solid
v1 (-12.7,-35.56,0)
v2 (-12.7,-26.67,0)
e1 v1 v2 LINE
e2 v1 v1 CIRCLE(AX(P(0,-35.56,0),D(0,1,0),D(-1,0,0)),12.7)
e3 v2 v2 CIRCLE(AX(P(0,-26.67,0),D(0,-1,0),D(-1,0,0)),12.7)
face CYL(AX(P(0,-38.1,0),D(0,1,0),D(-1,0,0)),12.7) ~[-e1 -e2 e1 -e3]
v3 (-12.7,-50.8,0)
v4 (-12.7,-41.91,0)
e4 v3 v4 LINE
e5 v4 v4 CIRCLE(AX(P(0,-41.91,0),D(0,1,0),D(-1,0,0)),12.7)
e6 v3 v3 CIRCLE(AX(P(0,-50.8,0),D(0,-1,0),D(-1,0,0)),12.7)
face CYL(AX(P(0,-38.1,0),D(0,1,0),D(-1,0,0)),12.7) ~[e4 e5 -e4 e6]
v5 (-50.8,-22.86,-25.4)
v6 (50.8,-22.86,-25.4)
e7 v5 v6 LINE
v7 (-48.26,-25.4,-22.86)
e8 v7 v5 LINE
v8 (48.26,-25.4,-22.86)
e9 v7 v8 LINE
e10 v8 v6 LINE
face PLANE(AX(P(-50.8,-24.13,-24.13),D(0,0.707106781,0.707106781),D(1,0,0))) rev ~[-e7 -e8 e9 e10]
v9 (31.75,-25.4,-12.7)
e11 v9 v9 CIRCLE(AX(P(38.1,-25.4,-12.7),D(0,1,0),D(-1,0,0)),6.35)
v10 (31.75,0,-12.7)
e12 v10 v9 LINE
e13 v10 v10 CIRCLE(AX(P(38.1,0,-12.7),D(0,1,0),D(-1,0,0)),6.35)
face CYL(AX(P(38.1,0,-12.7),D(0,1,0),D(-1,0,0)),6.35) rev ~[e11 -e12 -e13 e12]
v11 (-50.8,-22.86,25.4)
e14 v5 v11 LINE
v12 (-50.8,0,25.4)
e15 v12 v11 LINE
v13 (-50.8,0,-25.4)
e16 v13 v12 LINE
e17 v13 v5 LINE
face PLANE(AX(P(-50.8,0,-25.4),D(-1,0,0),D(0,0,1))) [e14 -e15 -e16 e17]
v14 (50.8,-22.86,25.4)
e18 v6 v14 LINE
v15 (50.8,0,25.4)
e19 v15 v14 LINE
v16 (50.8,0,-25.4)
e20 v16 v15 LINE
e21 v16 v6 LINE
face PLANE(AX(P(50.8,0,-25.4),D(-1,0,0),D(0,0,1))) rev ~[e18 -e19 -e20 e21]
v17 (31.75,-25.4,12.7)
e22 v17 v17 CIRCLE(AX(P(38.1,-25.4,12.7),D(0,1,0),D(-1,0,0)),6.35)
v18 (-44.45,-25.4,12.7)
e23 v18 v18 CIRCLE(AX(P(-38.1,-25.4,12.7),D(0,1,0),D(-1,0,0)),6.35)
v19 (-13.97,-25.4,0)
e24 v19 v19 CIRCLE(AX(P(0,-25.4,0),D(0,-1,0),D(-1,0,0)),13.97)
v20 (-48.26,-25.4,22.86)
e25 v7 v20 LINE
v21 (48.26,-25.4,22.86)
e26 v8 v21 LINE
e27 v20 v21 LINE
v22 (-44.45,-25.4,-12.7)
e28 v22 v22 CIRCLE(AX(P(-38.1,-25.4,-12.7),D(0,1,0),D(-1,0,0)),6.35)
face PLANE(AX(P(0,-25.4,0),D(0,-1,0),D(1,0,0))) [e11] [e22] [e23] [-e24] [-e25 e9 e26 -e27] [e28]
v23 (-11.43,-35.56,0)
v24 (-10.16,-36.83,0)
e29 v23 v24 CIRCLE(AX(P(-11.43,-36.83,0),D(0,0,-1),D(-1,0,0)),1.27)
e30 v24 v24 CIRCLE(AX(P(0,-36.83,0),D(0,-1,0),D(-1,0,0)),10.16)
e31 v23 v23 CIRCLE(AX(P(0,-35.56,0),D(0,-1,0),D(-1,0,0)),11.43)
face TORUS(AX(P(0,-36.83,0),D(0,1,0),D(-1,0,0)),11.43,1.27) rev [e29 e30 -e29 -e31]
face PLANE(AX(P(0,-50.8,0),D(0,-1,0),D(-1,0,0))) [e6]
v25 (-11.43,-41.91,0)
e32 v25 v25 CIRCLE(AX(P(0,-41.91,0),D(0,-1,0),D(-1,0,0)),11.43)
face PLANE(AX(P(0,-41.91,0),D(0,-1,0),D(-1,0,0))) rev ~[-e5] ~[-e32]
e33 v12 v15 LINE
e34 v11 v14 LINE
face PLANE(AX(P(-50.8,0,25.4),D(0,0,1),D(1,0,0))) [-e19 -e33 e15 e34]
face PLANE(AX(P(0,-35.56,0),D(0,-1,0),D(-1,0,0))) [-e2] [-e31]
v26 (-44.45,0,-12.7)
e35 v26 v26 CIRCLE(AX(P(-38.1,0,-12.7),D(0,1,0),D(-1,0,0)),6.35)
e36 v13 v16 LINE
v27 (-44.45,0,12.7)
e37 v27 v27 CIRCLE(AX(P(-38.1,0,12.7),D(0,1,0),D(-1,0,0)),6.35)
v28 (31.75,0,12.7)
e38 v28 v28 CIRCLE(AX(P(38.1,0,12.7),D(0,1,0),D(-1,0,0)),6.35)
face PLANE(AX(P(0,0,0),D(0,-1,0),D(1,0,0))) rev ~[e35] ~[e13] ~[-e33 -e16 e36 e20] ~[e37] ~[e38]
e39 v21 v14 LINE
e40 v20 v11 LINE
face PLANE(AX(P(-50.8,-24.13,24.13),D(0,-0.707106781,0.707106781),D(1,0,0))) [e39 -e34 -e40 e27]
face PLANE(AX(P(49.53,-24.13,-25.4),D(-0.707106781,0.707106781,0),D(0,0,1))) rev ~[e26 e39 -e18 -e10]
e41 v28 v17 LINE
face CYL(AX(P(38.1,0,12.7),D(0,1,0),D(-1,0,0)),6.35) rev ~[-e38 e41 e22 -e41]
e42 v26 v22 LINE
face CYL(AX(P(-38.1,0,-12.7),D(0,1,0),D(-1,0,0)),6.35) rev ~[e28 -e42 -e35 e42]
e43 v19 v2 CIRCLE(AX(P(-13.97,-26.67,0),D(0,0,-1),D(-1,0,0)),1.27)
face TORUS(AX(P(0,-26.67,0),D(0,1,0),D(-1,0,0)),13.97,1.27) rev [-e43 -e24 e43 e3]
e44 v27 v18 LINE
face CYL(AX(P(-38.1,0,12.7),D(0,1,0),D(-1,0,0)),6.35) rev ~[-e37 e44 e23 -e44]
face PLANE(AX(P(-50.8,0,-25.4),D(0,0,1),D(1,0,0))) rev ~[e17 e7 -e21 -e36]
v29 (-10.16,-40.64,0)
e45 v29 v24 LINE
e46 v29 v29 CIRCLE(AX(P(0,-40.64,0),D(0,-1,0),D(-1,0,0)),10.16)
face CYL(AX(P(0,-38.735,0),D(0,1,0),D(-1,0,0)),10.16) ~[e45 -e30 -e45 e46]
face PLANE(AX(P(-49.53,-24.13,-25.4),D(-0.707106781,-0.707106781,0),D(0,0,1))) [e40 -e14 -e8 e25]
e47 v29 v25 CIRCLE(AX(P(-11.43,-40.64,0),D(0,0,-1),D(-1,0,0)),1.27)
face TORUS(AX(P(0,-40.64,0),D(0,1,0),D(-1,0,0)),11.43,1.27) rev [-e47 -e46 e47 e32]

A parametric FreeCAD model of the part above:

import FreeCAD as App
import Part
import Sketcher

V = App.Vector
Q = App.Units.Quantity


def edges_at(feature, points):
    """Names of the edges that pass closest to the given points."""
    edges = feature.Shape.Edges
    near = lambda p: min(range(len(edges)), key=lambda i: edges[i].distToShape(Part.Vertex(*p))[0])
    return sorted({f"Edge{near(p) + 1}" for p in points})


def add_polygon(sketch, points):
    """Adds a closed chain of lines whose ends are joined by coincident constraints."""
    first, n = sketch.GeometryCount, len(points)
    for a, b in zip(points, points[1:] + points[:1]):
        sketch.addGeometry(Part.LineSegment(App.Vector(*a, 0), App.Vector(*b, 0)), False)
    for i in range(n):
        sketch.addConstraint(Sketcher.Constraint("Coincident", first + i, 2, first + (i + 1) % n, 1))

doc = App.newDocument("Part")
body = doc.addObject("PartDesign::Body", "Body")

# Sketch on XZ plane
sketch1 = doc.addObject("Sketcher::SketchObject", "Sketch")
body.addObject(sketch1)
sketch1.AttachmentSupport = (doc.XZ_Plane, [""])
sketch1.MapMode = "FlatFace"
add_polygon(sketch1, [(-51, 25), (-51, -25), (51, -25), (51, 25)])  # lines 0-3
sketch1.addConstraint(Sketcher.Constraint("Vertical", 0))
sketch1.addConstraint(Sketcher.Constraint("Horizontal", 1))
sketch1.addConstraint(Sketcher.Constraint("Vertical", 2))
sketch1.addConstraint(Sketcher.Constraint("Horizontal", 3))
sketch1.addConstraint(Sketcher.Constraint("Symmetric", 0, 2, 2, 2, -1, 1))
sketch1.addConstraint(Sketcher.Constraint("DistanceX", 1, 1, 1, 2, Q("4 in")))
sketch1.addConstraint(Sketcher.Constraint("DistanceY", 0, 2, 0, 1, Q("2 in")))
pad1 = doc.addObject("PartDesign::Pad", "Pad")
body.addObject(pad1)
pad1.Profile = sketch1
pad1.Length = Q("1 in")

# Sketch on XZ plane
sketch2 = doc.addObject("Sketcher::SketchObject", "Sketch001")
body.addObject(sketch2)
sketch2.AttachmentSupport = (doc.XZ_Plane, [""])
sketch2.MapMode = "FlatFace"
sketch2.addGeometry(Part.Circle(V(38, 13, 0), V(0, 0, 1), 6), False)
sketch2.addGeometry(Part.Circle(V(38, -13, 0), V(0, 0, 1), 6), False)
sketch2.addGeometry(Part.Circle(V(-38, 13, 0), V(0, 0, 1), 6), False)
sketch2.addGeometry(Part.Circle(V(-38, -13, 0), V(0, 0, 1), 6), False)
sketch2.addConstraint(Sketcher.Constraint("Equal", 0, 1))
sketch2.addConstraint(Sketcher.Constraint("Equal", 1, 2))
sketch2.addConstraint(Sketcher.Constraint("Equal", 2, 3))
sketch2.addConstraint(Sketcher.Constraint("Symmetric", 1, 3, 2, 3, -1, 1))
sketch2.addConstraint(Sketcher.Constraint("Symmetric", 0, 3, 3, 3, -1, 1))
sketch2.addConstraint(Sketcher.Constraint("Symmetric", 0, 3, 2, 3, -2))
sketch2.addConstraint(Sketcher.Constraint("Diameter", 0, Q("0.5 in")))
sketch2.addConstraint(Sketcher.Constraint("DistanceY", 1, 3, 0, 3, Q("1 in")))
sketch2.addConstraint(Sketcher.Constraint("DistanceX", 2, 3, 0, 3, Q("3 in")))
pocket1 = doc.addObject("PartDesign::Pocket", "Pocket")
body.addObject(pocket1)
pocket1.Profile = sketch2
pocket1.Type = "ThroughAll"
pocket1.Reversed = True

# Sketch on XY plane
sketch3 = doc.addObject("Sketcher::SketchObject", "Sketch002")
body.addObject(sketch3)
sketch3.AttachmentSupport = (doc.XY_Plane, [""])
sketch3.MapMode = "FlatFace"
add_polygon(sketch3, [(-13, -25), (-13, -51), (0, -51), (0, -25)])  # lines 0-3
sketch3.addConstraint(Sketcher.Constraint("Vertical", 0))
sketch3.addConstraint(Sketcher.Constraint("Horizontal", 1))
sketch3.addConstraint(Sketcher.Constraint("Vertical", 2))
sketch3.addConstraint(Sketcher.Constraint("Horizontal", 3))
sketch3.addConstraint(Sketcher.Constraint("PointOnObject", 1, 2, -2))
sketch3.addConstraint(Sketcher.Constraint("DistanceY", 0, 2, 0, 1, Q("1 in")))
sketch3.addConstraint(Sketcher.Constraint("DistanceX", 1, 1, 1, 2, Q("0.5 in")))
sketch3.addConstraint(Sketcher.Constraint("DistanceY", 0, 2, -1, 1, Q("2 in")))
revolution = doc.addObject("PartDesign::Revolution", "Revolution")
body.addObject(revolution)
revolution.Profile = sketch3
revolution.ReferenceAxis = (sketch3, ["V_Axis"])
revolution.Angle = 360

# Sketch on XY plane
sketch4 = doc.addObject("Sketcher::SketchObject", "Sketch003")
body.addObject(sketch4)
sketch4.AttachmentSupport = (doc.XY_Plane, [""])
sketch4.MapMode = "FlatFace"
add_polygon(sketch4, [(-16, -36), (-16, -42), (-10, -42), (-10, -36)])  # lines 0-3
sketch4.addConstraint(Sketcher.Constraint("Vertical", 0))
sketch4.addConstraint(Sketcher.Constraint("Horizontal", 1))
sketch4.addConstraint(Sketcher.Constraint("Vertical", 2))
sketch4.addConstraint(Sketcher.Constraint("Horizontal", 3))
sketch4.addConstraint(Sketcher.Constraint("DistanceY", 0, 2, 0, 1, Q("0.25 in")))
sketch4.addConstraint(Sketcher.Constraint("DistanceX", 1, 2, -1, 1, Q("0.4 in")))
sketch4.addConstraint(Sketcher.Constraint("DistanceY", 2, 2, -1, 1, Q("1.4 in")))
sketch4.addConstraint(Sketcher.Constraint("DistanceX", 1, 1, 1, 2, 5.860112))
groove = doc.addObject("PartDesign::Groove", "Groove")
body.addObject(groove)
groove.Profile = sketch4
groove.ReferenceAxis = (sketch4, ["V_Axis"])
groove.Angle = 360
doc.recompute()

fillet = doc.addObject("PartDesign::Fillet", "Fillet")
body.addObject(fillet)
fillet.Base = (groove, edges_at(groove, [(12.7, -25.4, 0), (10.16, -41.91, 0), (10.16, -35.56, 0)]))
fillet.Radius = Q("0.05 in")
doc.recompute()

chamfer = doc.addObject("PartDesign::Chamfer", "Chamfer")
body.addObject(chamfer)
chamfer.Base = (fillet, edges_at(fillet, [
    (0, -25.4, -25.4),
    (50.8, -25.4, 0),
    (0, -25.4, 25.4),
    (-50.8, -25.4, 0),
]))
chamfer.Size = Q("0.1 in")

doc.recompute()
